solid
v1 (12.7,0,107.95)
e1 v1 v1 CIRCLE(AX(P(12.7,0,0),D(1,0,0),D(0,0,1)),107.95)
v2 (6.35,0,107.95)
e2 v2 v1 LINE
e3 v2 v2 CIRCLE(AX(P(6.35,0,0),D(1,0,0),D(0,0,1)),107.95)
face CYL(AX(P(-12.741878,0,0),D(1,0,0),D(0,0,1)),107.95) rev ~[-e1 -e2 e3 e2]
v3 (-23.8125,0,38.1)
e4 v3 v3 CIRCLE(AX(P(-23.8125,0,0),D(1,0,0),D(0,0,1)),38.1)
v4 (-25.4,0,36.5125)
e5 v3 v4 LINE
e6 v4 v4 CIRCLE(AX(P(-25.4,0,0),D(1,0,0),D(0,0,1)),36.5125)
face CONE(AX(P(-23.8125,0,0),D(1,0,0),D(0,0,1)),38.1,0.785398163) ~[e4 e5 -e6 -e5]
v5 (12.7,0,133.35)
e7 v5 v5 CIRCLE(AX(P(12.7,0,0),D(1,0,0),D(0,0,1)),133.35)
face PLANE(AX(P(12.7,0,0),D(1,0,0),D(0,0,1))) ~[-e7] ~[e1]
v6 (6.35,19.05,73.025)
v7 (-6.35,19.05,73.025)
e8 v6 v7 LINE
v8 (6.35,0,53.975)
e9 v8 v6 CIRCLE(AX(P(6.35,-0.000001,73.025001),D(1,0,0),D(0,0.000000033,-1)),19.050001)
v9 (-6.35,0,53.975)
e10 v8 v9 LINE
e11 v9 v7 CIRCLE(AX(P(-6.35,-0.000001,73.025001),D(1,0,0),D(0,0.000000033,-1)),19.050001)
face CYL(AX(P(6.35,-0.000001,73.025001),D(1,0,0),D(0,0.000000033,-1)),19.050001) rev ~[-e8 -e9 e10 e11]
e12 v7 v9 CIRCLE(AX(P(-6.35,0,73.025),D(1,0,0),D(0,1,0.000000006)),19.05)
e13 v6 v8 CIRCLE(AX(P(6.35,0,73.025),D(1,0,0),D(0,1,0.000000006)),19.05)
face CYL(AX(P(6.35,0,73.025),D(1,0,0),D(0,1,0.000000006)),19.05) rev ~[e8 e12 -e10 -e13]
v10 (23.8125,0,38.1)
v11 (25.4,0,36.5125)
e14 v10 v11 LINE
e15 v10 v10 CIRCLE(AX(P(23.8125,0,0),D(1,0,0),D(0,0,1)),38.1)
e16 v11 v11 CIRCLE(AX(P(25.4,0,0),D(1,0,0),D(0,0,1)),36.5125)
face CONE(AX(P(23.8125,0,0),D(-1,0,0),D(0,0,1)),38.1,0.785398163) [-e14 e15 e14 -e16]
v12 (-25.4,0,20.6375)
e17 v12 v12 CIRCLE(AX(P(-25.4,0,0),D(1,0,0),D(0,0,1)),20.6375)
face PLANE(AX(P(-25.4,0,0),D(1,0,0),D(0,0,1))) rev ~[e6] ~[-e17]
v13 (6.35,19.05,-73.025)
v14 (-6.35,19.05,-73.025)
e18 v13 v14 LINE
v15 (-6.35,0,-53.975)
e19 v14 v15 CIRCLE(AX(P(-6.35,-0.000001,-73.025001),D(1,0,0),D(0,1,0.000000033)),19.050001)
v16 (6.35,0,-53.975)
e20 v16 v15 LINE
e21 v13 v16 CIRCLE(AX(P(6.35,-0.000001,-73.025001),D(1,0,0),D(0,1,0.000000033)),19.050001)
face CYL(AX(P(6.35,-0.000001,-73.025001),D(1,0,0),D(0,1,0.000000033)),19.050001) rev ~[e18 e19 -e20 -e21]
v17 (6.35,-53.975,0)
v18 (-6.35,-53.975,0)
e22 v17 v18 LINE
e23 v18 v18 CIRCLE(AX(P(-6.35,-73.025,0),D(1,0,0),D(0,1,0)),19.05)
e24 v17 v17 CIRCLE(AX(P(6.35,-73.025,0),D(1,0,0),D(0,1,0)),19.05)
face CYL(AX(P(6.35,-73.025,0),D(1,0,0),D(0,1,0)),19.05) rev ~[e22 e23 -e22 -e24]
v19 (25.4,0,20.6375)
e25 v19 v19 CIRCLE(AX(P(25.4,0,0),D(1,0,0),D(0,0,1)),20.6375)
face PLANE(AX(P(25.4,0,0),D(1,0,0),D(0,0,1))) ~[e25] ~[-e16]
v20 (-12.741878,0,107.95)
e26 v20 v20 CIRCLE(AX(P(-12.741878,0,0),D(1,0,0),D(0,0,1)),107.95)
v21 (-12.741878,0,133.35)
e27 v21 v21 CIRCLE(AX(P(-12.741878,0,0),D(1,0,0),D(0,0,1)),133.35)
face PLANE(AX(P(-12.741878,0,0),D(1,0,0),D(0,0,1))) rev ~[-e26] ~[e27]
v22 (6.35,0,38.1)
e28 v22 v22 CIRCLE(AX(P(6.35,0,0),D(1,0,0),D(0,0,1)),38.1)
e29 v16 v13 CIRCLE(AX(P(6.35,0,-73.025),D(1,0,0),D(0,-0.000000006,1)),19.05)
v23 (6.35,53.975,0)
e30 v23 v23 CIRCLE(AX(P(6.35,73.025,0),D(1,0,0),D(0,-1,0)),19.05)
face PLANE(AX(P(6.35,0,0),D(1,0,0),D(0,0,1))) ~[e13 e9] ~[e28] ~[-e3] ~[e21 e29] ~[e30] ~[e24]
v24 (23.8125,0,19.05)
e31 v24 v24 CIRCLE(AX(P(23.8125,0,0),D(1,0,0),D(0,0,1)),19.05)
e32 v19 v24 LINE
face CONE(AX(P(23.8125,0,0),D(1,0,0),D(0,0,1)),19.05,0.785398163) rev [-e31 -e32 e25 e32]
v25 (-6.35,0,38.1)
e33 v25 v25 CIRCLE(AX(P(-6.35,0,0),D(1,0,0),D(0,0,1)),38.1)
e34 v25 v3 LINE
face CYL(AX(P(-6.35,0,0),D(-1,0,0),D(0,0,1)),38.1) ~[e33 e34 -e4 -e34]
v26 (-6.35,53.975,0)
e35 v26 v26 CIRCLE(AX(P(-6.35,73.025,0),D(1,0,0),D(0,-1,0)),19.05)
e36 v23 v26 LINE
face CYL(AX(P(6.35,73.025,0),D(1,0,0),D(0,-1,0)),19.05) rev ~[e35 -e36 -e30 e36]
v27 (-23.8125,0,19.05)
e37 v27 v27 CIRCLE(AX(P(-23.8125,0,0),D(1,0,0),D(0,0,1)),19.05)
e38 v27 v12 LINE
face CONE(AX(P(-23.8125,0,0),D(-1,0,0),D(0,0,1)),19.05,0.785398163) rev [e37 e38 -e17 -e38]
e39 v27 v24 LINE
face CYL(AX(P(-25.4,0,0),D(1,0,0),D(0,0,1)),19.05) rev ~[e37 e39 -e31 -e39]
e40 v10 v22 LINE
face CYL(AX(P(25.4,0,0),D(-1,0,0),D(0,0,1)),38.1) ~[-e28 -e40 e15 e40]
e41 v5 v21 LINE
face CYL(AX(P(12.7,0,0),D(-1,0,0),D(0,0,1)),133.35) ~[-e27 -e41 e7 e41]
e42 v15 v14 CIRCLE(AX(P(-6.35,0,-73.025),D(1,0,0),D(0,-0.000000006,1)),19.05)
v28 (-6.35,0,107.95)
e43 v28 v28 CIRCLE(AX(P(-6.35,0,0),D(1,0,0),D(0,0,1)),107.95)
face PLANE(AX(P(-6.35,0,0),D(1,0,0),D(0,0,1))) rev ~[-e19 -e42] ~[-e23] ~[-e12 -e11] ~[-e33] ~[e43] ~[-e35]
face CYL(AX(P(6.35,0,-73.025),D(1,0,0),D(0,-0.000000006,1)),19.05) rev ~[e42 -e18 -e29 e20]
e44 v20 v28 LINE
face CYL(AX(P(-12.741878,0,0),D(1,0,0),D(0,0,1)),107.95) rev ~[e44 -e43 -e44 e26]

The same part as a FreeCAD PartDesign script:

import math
import FreeCAD as App
import Part
import Sketcher

V = App.Vector
Q = App.Units.Quantity


def edges_at(feature, points):
    """Names of the edges that pass closest to the given points."""
    edges = feature.Shape.Edges
    near = lambda p: min(range(len(edges)), key=lambda i: edges[i].distToShape(Part.Vertex(*p))[0])
    return sorted({f"Edge{near(p) + 1}" for p in points})

doc = App.newDocument("Part")
body = doc.addObject("PartDesign::Body", "Body")

# Sketch on XZ plane
sketch1 = doc.addObject("Sketcher::SketchObject", "Sketch")
body.addObject(sketch1)
sketch1.AttachmentSupport = (doc.XZ_Plane, [""])
sketch1.MapMode = "FlatFace"
sketch1.addGeometry([
    Part.LineSegment(V(13, 108, 0), V(13, 133, 0)),  # 0
    Part.LineSegment(V(13, 133, 0), V(-13, 133, 0)),  # 1
    Part.LineSegment(V(-13, 133, 0), V(-13, 108, 0)),  # 2
    Part.LineSegment(V(-13, 108, 0), V(-6, 108, 0)),  # 3
    Part.LineSegment(V(-6, 108, 0), V(-6, 38, 0)),  # 4
    Part.LineSegment(V(-6, 38, 0), V(-25, 38, 0)),  # 5
    Part.LineSegment(V(-25, 38, 0), V(-25, 19, 0)),  # 6
    Part.LineSegment(V(-25, 19, 0), V(25, 19, 0)),  # 7
    Part.LineSegment(V(25, 19, 0), V(25, 38, 0)),  # 8
    Part.LineSegment(V(25, 38, 0), V(6, 38, 0)),  # 9
    Part.LineSegment(V(6, 38, 0), V(6, 108, 0)),  # 10
    Part.LineSegment(V(6, 108, 0), V(13, 108, 0)),  # 11
], False)
sketch1.addConstraint([
    Sketcher.Constraint("Coincident", 0, 2, 1, 1),
    Sketcher.Constraint("Coincident", 1, 2, 2, 1),
    Sketcher.Constraint("Coincident", 2, 2, 3, 1),
    Sketcher.Constraint("Coincident", 3, 2, 4, 1),
    Sketcher.Constraint("Coincident", 4, 2, 5, 1),
    Sketcher.Constraint("Coincident", 5, 2, 6, 1),
    Sketcher.Constraint("Coincident", 6, 2, 7, 1),
    Sketcher.Constraint("Coincident", 7, 2, 8, 1),
    Sketcher.Constraint("Coincident", 8, 2, 9, 1),
    Sketcher.Constraint("Coincident", 9, 2, 10, 1),
    Sketcher.Constraint("Coincident", 10, 2, 11, 1),
    Sketcher.Constraint("Coincident", 11, 2, 0, 1),
    Sketcher.Constraint("Vertical", 0),
    Sketcher.Constraint("Horizontal", 1),
    Sketcher.Constraint("Vertical", 2),
    Sketcher.Constraint("Horizontal", 3),
    Sketcher.Constraint("Vertical", 4),
    Sketcher.Constraint("Horizontal", 5),
    Sketcher.Constraint("Vertical", 6),
    Sketcher.Constraint("Horizontal", 7),
    Sketcher.Constraint("Vertical", 8),
    Sketcher.Constraint("Horizontal", 9),
    Sketcher.Constraint("Vertical", 10),
    Sketcher.Constraint("Horizontal", 11),
    Sketcher.Constraint("Symmetric", 5, 2, 8, 2, -2),
    Sketcher.Constraint("Symmetric", 3, 2, 10, 2, -2),
    Sketcher.Constraint("Equal", 9, 6),
    Sketcher.Constraint("DistanceX", 7, 1, 7, 2, Q("2 in")),
    Sketcher.Constraint("DistanceY", 0, 1, 0, 2, Q("1 in")),
    Sketcher.Constraint("DistanceX", 5, 2, 5, 1, Q("0.75 in")),
    Sketcher.Constraint("DistanceX", 11, 1, 11, 2, Q("0.25 in")),
    Sketcher.Constraint("DistanceY", 4, 2, 4, 1, Q("2.75 in")),
    Sketcher.Constraint("DistanceY", -1, 1, 4, 2, Q("1.5 in")),
    Sketcher.Constraint("DistanceX", 3, 1, 3, 2, Q("6.391878 mm")),
])
revolution = doc.addObject("PartDesign::Revolution", "Revolution")
body.addObject(revolution)
revolution.Profile = sketch1
revolution.ReferenceAxis = (sketch1, ["H_Axis"])
revolution.Angle = 360

# Sketch on YZ plane
sketch2 = doc.addObject("Sketcher::SketchObject", "Sketch001")
body.addObject(sketch2)
sketch2.AttachmentSupport = (doc.YZ_Plane, [""])
sketch2.MapMode = "FlatFace"
sketch2.AttachmentOffset = App.Placement(V(0, 0, 0.25 * 25.4), App.Rotation())
sketch2.addGeometry([
    Part.Circle(V(-73, 0, 0), V(0, 0, 1), 19),  # 0
    Part.ArcOfCircle(Part.Circle(V(0, 73, 0), V(0, 0, 1), 19), math.radians(0), math.radians(270)),  # 1
    Part.ArcOfCircle(Part.Circle(V(0, 73, 0), V(0, 0, 1), 19), math.radians(-90), math.radians(0)),  # 2
    Part.Circle(V(73, 0, 0), V(0, 0, 1), 19),  # 3
    Part.ArcOfCircle(Part.Circle(V(0, -73, 0), V(0, 0, 1), 19), math.radians(0), math.radians(90)),  # 4
    Part.ArcOfCircle(Part.Circle(V(0, -73, 0), V(0, 0, 1), 19), math.radians(90), math.radians(360)),  # 5
], False)
sketch2.addConstraint([
    Sketcher.Constraint("Tangent", 1, 1, 2, 2),
    Sketcher.Constraint("Coincident", 2, 1, 1, 2),
    Sketcher.Constraint("Tangent", 4, 1, 5, 2),
    Sketcher.Constraint("Coincident", 5, 1, 4, 2),
    Sketcher.Constraint("Equal", 0, 1),
    Sketcher.Constraint("Equal", 2, 3),
    Sketcher.Constraint("Equal", 3, 4),
    Sketcher.Constraint("Symmetric", 0, 3, 3, 3, -1, 1),
    Sketcher.Constraint("Symmetric", 1, 3, 4, 3, -1, 1),
    Sketcher.Constraint("Symmetric", 1, 1, 4, 1, -1),
    Sketcher.Constraint("PointOnObject", 0, 3, -1),
    Sketcher.Constraint("PointOnObject", 2, 1, -2),
    Sketcher.Constraint("PointOnObject", 5, 1, -2),
    Sketcher.Constraint("Horizontal", 2, 3, 1, 1),
    Sketcher.Constraint("Diameter", 0, Q("1.5 in")),
    Sketcher.Constraint("DistanceY", 4, 1, 2, 1, Q("5 in")),
    Sketcher.Constraint("DistanceX", 0, 3, 3, 3, Q("5.75 in")),
])
pocket1 = doc.addObject("PartDesign::Pocket", "Pocket")
body.addObject(pocket1)
pocket1.Profile = sketch2
pocket1.Length = Q("1 in")
doc.recompute()

chamfer = doc.addObject("PartDesign::Chamfer", "Chamfer")
body.addObject(chamfer)
chamfer.Base = (pocket1, edges_at(pocket1, [(25.4, 0, -38.1), (25.4, 0, -19.05)]))
chamfer.Size = Q("0.0625 in")
doc.recompute()

chamfer2 = doc.addObject("PartDesign::Chamfer", "Chamfer001")
body.addObject(chamfer2)
chamfer2.Base = (chamfer, edges_at(chamfer, [(-25.4, 0, -38.1), (-25.4, 0, -19.05)]))
chamfer2.Size = Q("0.0625 in")

doc.recompute()
